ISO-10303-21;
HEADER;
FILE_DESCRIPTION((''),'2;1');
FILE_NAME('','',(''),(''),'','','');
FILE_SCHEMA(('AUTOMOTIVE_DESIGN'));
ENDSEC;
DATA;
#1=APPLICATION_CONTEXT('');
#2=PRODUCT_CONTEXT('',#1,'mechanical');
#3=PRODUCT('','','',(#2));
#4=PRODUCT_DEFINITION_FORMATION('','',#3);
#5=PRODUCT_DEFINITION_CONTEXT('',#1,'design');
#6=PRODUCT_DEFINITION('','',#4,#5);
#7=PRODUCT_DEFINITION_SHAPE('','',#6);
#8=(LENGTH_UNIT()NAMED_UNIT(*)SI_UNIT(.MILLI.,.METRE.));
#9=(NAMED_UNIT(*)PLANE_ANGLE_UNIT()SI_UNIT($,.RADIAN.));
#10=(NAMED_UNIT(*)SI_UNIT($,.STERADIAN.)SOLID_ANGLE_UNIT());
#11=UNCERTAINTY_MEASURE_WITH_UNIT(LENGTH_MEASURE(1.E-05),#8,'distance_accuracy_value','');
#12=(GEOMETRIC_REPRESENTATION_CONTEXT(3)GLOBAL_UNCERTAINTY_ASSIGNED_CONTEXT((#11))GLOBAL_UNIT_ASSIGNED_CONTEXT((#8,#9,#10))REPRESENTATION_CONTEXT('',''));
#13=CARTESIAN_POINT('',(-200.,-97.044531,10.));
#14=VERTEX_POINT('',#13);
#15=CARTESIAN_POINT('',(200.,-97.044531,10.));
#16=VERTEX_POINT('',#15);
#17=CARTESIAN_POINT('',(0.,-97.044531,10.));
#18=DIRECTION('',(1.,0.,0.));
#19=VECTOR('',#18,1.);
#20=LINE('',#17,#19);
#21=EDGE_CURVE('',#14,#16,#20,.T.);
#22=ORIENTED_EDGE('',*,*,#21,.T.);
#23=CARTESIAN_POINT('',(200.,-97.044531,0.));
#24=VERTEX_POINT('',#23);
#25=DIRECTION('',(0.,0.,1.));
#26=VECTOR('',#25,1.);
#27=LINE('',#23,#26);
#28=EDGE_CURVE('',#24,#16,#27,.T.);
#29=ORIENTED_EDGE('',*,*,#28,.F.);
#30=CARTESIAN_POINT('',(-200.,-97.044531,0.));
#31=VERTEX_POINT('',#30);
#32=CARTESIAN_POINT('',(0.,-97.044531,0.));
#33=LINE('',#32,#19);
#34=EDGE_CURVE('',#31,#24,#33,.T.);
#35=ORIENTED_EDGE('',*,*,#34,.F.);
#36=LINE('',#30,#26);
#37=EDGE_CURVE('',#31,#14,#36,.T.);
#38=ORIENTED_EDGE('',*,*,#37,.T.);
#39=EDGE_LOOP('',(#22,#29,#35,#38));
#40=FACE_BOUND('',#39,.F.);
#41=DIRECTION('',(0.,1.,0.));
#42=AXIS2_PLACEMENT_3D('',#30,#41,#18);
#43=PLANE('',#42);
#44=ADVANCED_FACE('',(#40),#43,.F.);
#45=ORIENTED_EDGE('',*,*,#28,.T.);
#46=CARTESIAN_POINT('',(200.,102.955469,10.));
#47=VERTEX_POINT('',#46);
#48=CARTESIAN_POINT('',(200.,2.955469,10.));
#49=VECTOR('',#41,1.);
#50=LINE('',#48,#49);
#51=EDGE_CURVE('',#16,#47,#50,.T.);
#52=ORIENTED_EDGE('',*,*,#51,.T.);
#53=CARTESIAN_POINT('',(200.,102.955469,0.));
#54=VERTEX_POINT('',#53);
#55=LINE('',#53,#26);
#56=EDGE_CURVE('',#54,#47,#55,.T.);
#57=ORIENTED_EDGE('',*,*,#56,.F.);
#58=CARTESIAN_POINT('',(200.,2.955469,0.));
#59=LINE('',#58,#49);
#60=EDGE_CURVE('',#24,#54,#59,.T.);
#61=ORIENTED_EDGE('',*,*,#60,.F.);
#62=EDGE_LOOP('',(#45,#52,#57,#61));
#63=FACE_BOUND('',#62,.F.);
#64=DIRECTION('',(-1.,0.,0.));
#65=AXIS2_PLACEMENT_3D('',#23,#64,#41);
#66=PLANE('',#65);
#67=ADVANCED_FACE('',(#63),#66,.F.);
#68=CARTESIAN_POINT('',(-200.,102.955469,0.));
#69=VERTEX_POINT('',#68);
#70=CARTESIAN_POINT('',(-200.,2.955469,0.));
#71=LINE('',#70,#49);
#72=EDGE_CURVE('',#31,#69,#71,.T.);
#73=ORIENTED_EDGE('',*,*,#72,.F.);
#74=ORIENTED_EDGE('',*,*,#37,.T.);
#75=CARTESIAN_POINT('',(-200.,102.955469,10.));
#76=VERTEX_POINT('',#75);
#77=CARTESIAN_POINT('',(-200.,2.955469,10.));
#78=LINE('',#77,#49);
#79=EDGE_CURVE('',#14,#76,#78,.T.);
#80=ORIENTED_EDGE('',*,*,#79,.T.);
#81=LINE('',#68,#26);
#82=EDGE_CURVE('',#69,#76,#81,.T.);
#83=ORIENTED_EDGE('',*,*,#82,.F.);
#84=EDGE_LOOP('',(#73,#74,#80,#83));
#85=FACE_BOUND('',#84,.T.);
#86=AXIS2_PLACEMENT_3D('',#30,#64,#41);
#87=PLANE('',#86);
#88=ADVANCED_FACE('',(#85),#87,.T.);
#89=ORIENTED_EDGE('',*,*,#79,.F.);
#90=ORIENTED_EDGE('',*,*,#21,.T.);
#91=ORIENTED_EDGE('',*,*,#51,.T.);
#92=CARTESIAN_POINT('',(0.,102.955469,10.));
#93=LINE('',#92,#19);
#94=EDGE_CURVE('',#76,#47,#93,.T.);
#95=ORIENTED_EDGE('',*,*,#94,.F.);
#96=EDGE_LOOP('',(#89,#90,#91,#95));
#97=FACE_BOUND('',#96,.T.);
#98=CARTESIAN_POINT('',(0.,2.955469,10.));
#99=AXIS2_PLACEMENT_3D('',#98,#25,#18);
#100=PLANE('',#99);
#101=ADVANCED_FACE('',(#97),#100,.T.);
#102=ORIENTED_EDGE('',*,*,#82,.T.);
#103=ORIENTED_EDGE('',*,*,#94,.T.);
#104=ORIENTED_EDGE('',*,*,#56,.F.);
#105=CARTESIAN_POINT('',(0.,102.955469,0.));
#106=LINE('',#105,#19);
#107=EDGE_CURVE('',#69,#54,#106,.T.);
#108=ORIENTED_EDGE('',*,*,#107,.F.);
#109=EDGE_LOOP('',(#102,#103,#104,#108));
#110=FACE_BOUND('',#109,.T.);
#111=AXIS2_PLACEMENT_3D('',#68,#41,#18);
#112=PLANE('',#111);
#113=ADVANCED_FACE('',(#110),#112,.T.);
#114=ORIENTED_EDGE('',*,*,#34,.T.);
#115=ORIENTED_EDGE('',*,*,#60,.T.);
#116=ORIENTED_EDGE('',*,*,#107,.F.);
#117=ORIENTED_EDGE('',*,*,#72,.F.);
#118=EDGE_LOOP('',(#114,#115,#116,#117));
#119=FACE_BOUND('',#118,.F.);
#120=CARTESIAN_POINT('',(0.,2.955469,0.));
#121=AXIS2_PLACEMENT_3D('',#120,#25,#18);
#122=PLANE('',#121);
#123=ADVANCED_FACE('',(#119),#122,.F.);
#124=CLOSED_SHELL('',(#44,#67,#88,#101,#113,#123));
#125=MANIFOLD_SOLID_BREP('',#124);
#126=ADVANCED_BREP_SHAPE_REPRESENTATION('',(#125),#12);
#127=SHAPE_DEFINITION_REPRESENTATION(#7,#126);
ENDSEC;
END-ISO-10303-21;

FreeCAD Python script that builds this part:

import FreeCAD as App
import Part
import Sketcher

V = App.Vector

doc = App.newDocument("Part")
body = doc.addObject("PartDesign::Body", "Body")

sketch1 = body.newObject("Sketcher::SketchObject", "Sketch")
sketch1.AttachmentSupport = (doc.getObject("XY_Plane"), [""])
sketch1.MapMode = "FlatFace"
sketch1.addGeometry(Part.LineSegment(V(-200, 1438, 0), V(-200, 1238, 0)), False)
sketch1.addGeometry(Part.LineSegment(V(-200, 1238, 0), V(200, 1238, 0)), False)
sketch1.addGeometry(Part.LineSegment(V(200, 1238, 0), V(200, 1438, 0)), False)
sketch1.addGeometry(Part.LineSegment(V(200, 1438, 0), V(-200, 1438, 0)), False)
sketch1.addConstraint(Sketcher.Constraint("Coincident", 0, 2, 1, 1))
sketch1.addConstraint(Sketcher.Constraint("Coincident", 1, 2, 2, 1))
sketch1.addConstraint(Sketcher.Constraint("Coincident", 2, 2, 3, 1))
sketch1.addConstraint(Sketcher.Constraint("Coincident", 3, 2, 0, 1))
sketch1.addConstraint(Sketcher.Constraint("Vertical", 0))
sketch1.addConstraint(Sketcher.Constraint("Horizontal", 1))
sketch1.addConstraint(Sketcher.Constraint("Vertical", 2))
sketch1.addConstraint(Sketcher.Constraint("Horizontal", 3))
sketch1.addConstraint(Sketcher.Constraint("DistanceX", 1, 1, 1, 2, 400.0))
sketch1.addConstraint(Sketcher.Constraint("DistanceY", 0, 2, 0, 1, 200.0))
sketch1.addConstraint(Sketcher.Constraint("DistanceX", 0, 2, -1, 1, 200.0))
sketch1.addConstraint(Sketcher.Constraint("DistanceY", -1, 1, 0, 2, 1238.235289))
pad1 = body.newObject("PartDesign::Pad", "Pad")
pad1.Profile = sketch1
pad1.Length = 10
body2 = doc.addObject("PartDesign::Body", "Body001")
doc.recompute()

body.Placement = App.Placement(V(0, -1335.27982, 0), App.Rotation(V(0, 0, 1), 0))
boolean = body2.newObject("PartDesign::Boolean", "Boolean")
boolean.Type = "Fuse"
boolean.addObjects([body])

doc.recompute()
